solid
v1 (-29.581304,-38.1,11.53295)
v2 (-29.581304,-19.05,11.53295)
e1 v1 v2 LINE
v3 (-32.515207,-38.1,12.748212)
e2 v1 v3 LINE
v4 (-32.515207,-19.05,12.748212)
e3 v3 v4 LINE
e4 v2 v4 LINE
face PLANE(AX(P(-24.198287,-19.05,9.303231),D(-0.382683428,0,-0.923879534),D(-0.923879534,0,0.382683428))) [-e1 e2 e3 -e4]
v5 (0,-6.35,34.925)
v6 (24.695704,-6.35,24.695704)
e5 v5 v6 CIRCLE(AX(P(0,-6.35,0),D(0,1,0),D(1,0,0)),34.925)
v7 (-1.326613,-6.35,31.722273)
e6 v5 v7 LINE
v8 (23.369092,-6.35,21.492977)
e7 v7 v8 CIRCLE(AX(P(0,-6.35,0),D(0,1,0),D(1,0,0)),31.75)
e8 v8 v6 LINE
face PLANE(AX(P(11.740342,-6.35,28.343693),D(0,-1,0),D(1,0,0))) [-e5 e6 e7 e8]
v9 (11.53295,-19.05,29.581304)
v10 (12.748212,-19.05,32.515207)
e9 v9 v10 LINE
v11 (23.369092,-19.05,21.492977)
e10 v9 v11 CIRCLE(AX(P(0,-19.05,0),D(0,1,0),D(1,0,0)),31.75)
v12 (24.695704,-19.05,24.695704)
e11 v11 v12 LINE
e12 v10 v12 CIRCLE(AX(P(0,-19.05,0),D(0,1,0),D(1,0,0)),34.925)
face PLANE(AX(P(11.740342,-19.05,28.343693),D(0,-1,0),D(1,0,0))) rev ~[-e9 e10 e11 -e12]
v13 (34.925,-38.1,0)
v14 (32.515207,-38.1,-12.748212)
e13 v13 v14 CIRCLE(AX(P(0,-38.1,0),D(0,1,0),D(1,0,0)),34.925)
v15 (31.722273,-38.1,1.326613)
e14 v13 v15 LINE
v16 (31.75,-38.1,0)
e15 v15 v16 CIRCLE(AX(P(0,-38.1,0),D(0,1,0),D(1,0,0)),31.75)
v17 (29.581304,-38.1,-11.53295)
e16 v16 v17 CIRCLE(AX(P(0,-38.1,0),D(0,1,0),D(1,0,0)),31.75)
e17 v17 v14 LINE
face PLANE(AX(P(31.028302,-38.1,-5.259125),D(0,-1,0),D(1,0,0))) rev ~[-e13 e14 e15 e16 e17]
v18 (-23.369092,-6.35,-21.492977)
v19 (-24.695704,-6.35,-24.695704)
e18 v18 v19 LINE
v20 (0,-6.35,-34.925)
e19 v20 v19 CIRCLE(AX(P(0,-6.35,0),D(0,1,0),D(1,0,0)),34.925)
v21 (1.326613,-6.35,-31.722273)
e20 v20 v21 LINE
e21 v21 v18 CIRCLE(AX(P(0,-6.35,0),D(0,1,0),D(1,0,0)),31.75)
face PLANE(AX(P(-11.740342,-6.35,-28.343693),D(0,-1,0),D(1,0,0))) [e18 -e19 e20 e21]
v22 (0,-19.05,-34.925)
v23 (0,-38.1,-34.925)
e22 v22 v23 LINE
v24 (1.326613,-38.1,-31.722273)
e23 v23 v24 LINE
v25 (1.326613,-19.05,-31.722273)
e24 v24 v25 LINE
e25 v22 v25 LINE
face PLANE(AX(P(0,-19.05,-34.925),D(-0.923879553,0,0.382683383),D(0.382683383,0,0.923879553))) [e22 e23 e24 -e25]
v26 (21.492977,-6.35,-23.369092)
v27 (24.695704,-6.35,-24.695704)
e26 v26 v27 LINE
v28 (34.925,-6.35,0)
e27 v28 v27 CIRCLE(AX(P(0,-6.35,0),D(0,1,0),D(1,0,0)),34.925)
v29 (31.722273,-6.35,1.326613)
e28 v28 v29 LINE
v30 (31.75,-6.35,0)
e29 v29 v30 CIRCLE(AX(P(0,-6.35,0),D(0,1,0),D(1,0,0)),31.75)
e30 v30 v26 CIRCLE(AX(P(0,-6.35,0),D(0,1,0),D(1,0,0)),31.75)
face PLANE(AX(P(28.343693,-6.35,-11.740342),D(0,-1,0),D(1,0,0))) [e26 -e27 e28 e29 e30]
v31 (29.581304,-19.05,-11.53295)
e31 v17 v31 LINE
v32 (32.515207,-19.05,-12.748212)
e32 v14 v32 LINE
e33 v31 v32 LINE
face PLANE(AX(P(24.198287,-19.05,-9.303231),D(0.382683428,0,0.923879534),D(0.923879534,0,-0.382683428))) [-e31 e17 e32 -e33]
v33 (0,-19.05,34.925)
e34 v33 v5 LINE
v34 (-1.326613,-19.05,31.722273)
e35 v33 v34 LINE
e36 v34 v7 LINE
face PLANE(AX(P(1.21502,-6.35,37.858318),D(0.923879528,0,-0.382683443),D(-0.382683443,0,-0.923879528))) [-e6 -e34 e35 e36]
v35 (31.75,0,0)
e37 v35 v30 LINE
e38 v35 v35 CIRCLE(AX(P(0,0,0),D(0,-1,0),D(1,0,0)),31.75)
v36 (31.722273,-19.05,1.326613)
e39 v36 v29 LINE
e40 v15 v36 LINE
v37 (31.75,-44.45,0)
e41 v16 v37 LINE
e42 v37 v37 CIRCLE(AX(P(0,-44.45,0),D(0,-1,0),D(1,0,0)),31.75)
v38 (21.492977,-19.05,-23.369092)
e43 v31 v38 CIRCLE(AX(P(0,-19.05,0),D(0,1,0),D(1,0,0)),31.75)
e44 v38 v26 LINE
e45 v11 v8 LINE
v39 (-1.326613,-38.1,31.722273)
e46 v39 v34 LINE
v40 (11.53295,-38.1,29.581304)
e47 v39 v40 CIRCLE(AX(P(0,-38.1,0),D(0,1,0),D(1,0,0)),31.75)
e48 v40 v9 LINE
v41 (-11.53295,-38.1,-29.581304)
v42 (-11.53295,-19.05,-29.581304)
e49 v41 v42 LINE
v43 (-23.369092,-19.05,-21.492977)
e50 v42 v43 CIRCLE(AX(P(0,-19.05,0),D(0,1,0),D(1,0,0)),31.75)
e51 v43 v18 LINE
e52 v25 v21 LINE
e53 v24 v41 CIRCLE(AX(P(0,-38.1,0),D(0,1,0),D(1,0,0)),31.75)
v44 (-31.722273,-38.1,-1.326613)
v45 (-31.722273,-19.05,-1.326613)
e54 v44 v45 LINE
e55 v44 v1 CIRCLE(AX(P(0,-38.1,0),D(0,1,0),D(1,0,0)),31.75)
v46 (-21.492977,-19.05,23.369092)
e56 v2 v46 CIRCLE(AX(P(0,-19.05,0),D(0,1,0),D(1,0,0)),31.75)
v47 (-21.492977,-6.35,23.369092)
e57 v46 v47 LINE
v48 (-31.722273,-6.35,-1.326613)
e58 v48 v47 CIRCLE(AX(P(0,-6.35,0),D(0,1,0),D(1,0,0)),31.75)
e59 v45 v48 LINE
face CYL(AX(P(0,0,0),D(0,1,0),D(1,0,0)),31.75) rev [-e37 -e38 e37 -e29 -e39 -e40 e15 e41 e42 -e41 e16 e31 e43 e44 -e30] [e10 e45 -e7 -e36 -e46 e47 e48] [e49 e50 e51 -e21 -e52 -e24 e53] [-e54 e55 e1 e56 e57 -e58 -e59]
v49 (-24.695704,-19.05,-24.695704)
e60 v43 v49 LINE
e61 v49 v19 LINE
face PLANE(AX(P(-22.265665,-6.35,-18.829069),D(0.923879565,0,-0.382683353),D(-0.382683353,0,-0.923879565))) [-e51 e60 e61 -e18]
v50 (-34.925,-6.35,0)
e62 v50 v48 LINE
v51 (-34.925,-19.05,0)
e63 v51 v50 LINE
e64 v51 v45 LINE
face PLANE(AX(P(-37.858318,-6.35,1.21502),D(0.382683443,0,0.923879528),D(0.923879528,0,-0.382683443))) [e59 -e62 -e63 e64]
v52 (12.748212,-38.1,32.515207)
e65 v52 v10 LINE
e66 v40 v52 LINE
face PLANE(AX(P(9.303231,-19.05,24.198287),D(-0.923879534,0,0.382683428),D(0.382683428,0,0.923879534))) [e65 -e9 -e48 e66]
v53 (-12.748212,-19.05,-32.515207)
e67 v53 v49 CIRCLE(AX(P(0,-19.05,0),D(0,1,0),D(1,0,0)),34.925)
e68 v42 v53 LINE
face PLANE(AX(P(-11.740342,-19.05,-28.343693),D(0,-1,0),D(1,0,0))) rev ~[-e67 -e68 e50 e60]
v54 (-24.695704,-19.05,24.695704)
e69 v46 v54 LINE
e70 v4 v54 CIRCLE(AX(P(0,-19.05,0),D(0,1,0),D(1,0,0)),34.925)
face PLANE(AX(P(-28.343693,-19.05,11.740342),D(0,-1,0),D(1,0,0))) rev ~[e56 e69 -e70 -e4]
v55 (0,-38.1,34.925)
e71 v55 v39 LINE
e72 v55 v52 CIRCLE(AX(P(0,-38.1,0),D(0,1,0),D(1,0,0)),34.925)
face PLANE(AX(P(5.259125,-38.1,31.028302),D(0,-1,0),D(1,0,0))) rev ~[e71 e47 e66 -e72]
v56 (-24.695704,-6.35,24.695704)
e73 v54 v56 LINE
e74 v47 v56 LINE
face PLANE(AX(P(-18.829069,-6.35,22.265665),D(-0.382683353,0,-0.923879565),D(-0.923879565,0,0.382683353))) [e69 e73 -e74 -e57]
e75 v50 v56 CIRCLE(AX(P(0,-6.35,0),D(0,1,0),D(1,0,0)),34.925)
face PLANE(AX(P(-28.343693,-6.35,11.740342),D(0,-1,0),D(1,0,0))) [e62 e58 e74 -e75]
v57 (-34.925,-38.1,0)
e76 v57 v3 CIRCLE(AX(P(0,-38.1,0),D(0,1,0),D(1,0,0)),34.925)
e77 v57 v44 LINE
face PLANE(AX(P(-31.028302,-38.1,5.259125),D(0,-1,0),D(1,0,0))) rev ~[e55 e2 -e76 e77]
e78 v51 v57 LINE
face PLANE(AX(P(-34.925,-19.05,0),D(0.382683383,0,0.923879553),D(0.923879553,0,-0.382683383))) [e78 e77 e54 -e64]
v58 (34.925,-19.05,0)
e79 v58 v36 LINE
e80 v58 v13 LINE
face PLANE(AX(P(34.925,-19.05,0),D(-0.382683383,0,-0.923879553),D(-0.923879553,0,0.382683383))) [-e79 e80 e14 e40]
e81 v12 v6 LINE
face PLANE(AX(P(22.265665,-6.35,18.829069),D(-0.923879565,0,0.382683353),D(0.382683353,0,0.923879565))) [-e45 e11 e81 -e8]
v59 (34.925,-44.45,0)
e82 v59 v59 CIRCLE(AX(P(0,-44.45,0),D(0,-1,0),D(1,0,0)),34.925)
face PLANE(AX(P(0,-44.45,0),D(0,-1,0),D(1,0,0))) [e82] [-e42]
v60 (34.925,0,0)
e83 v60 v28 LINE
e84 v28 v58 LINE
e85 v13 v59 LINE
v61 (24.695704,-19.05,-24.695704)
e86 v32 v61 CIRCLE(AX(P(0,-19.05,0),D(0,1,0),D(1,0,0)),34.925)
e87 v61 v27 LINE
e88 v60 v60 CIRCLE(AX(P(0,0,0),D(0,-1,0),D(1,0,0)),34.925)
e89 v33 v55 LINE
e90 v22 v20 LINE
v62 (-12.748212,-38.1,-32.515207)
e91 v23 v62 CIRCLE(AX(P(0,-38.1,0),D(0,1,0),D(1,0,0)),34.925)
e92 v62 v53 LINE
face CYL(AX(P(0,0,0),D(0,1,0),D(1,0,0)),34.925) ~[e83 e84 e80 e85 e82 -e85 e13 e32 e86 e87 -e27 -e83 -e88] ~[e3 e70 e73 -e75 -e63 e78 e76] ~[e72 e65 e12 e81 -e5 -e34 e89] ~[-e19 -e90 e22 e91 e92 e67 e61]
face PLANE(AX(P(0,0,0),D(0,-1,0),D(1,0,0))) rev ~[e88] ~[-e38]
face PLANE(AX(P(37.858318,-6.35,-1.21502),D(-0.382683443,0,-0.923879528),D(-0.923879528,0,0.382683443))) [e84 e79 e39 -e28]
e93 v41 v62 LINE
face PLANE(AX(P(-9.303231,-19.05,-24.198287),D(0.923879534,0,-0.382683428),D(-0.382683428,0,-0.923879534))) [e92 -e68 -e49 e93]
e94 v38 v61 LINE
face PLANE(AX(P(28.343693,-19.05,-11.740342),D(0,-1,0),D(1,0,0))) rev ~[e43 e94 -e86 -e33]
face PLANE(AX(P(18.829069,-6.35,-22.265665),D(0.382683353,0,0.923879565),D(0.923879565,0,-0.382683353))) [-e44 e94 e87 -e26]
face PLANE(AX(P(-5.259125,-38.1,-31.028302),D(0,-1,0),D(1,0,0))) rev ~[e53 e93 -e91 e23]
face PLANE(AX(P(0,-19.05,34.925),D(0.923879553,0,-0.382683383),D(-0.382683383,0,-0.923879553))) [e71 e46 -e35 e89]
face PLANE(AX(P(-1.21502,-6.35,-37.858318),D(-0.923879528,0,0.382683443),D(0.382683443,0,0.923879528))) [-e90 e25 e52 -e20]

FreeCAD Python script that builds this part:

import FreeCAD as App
import Part
import Sketcher

V = App.Vector
Q = App.Units.Quantity

doc = App.newDocument("Part")
body = doc.addObject("PartDesign::Body", "Body")

# Sketch on XZ plane
sketch1 = doc.addObject("Sketcher::SketchObject", "Sketch")
body.addObject(sketch1)
sketch1.AttachmentSupport = (doc.XZ_Plane, [""])
sketch1.MapMode = "FlatFace"
sketch1.addGeometry(Part.Circle(V(0, 0, 0), V(0, 0, 1), 35), False)
sketch1.addGeometry(Part.Circle(V(0, 0, 0), V(0, 0, 1), 32), False)
sketch1.addConstraint(Sketcher.Constraint("Coincident", 0, 3, -1, 1))
sketch1.addConstraint(Sketcher.Constraint("Coincident", 1, 3, -1, 1))
sketch1.addConstraint(Sketcher.Constraint("Diameter", 1, Q("2.5 in")))
sketch1.addConstraint(Sketcher.Constraint("Diameter", 0, Q("2.75 in")))
pad1 = doc.addObject("PartDesign::Pad", "Pad")
body.addObject(pad1)
pad1.Profile = sketch1
pad1.Length = Q("1.75 in")

# Sketch on XZ plane
sketch2 = doc.addObject("Sketcher::SketchObject", "Sketch001")
body.addObject(sketch2)
sketch2.AttachmentSupport = (doc.XZ_Plane, [""])
sketch2.MapMode = "FlatFace"
sketch2.AttachmentOffset = App.Placement(V(0, 0, 0.25 * 25.4), App.Rotation())
sketch2.addGeometry(Part.LineSegment(V(-29, -2, 0), V(-19, 22, 0)), False)
sketch2.addGeometry(Part.LineSegment(V(-19, 22, 0), V(-28, 26, 0)), False)
sketch2.addGeometry(Part.LineSegment(V(-28, 26, 0), V(-38, 1, 0)), False)
sketch2.addGeometry(Part.LineSegment(V(-38, 1, 0), V(-29, -2, 0)), False)
sketch2.addGeometry(Part.LineSegment(V(26, 28, 0), V(1, 38, 0)), False)
sketch2.addGeometry(Part.LineSegment(V(1, 38, 0), V(-2, 29, 0)), False)
sketch2.addGeometry(Part.LineSegment(V(-2, 29, 0), V(22, 19, 0)), False)
sketch2.addGeometry(Part.LineSegment(V(22, 19, 0), V(26, 28, 0)), False)
sketch2.addGeometry(Part.LineSegment(V(29, 2, 0), V(19, -22, 0)), False)
sketch2.addGeometry(Part.LineSegment(V(19, -22, 0), V(28, -26, 0)), False)
sketch2.addGeometry(Part.LineSegment(V(28, -26, 0), V(38, -1, 0)), False)
sketch2.addGeometry(Part.LineSegment(V(38, -1, 0), V(29, 2, 0)), False)
sketch2.addGeometry(Part.LineSegment(V(2, -29, 0), V(-22, -19, 0)), False)
sketch2.addGeometry(Part.LineSegment(V(-22, -19, 0), V(-26, -28, 0)), False)
sketch2.addGeometry(Part.LineSegment(V(-26, -28, 0), V(-1, -38, 0)), False)
sketch2.addGeometry(Part.LineSegment(V(-1, -38, 0), V(2, -29, 0)), False)
sketch2.addConstraint(Sketcher.Constraint("Coincident", 0, 2, 1, 1))
sketch2.addConstraint(Sketcher.Constraint("Coincident", 1, 2, 2, 1))
sketch2.addConstraint(Sketcher.Constraint("Coincident", 2, 2, 3, 1))
sketch2.addConstraint(Sketcher.Constraint("Coincident", 3, 2, 0, 1))
sketch2.addConstraint(Sketcher.Constraint("Coincident", 4, 2, 5, 1))
sketch2.addConstraint(Sketcher.Constraint("Coincident", 5, 2, 6, 1))
sketch2.addConstraint(Sketcher.Constraint("Coincident", 6, 2, 7, 1))
sketch2.addConstraint(Sketcher.Constraint("Coincident", 7, 2, 4, 1))
sketch2.addConstraint(Sketcher.Constraint("Coincident", 8, 2, 9, 1))
sketch2.addConstraint(Sketcher.Constraint("Coincident", 9, 2, 10, 1))
sketch2.addConstraint(Sketcher.Constraint("Coincident", 10, 2, 11, 1))
sketch2.addConstraint(Sketcher.Constraint("Coincident", 11, 2, 8, 1))
sketch2.addConstraint(Sketcher.Constraint("Coincident", 12, 2, 13, 1))
sketch2.addConstraint(Sketcher.Constraint("Coincident", 13, 2, 14, 1))
sketch2.addConstraint(Sketcher.Constraint("Coincident", 14, 2, 15, 1))
sketch2.addConstraint(Sketcher.Constraint("Coincident", 15, 2, 12, 1))
sketch2.addConstraint(Sketcher.Constraint("Symmetric", 0, 2, 8, 2, -1, 1))
sketch2.addConstraint(Sketcher.Constraint("Symmetric", 1, 2, 9, 2, -1, 1))
sketch2.addConstraint(Sketcher.Constraint("Symmetric", 2, 2, 10, 2, -1, 1))
sketch2.addConstraint(Sketcher.Constraint("Symmetric", 3, 2, 11, 2, -1, 1))
sketch2.addConstraint(Sketcher.Constraint("Symmetric", 6, 2, 12, 2, -1, 1))
sketch2.addConstraint(Sketcher.Constraint("Symmetric", 7, 2, 13, 2, -1, 1))
sketch2.addConstraint(Sketcher.Constraint("Symmetric", 4, 2, 14, 2, -1, 1))
sketch2.addConstraint(Sketcher.Constraint("Symmetric", 5, 2, 15, 2, -1, 1))
sketch2.addConstraint(Sketcher.Constraint("Perpendicular", 0, 1))
sketch2.addConstraint(Sketcher.Constraint("Perpendicular", 1, 2))
sketch2.addConstraint(Sketcher.Constraint("Perpendicular", 2, 3))
sketch2.addConstraint(Sketcher.Constraint("Parallel", 3, 4))
sketch2.addConstraint(Sketcher.Constraint("Perpendicular", 4, 5))
sketch2.addConstraint(Sketcher.Constraint("Perpendicular", 5, 6))
sketch2.addConstraint(Sketcher.Constraint("Perpendicular", 6, 7))
sketch2.addConstraint(Sketcher.Constraint("Equal", 2, 4))
sketch2.addConstraint(Sketcher.Constraint("Equal", 3, 5))
sketch2.addConstraint(Sketcher.Constraint("Angle", 0, Q("67.5 deg")))
sketch2.addConstraint(Sketcher.Constraint("Distance", 1, Q("0.375 in")))
sketch2.addConstraint(Sketcher.Constraint("DistanceY", 0, 2, 5, 2, Q("6.7927 mm")))
sketch2.addConstraint(Sketcher.Constraint("DistanceY", 1, 2, 7, 2, Q("1.718298 mm")))
sketch2.addConstraint(Sketcher.Constraint("DistanceX", 7, 2, 9, 2, Q("1.718298 mm")))
sketch2.addConstraint(Sketcher.Constraint("DistanceX", 0, 2, -1, 1, Q("18.829069 mm")))
sketch2.addConstraint(Sketcher.Constraint("DistanceY", -1, 1, 2, 2, Q("1.21502 mm")))
pocket1 = doc.addObject("PartDesign::Pocket", "Pocket")
body.addObject(pocket1)
pocket1.Profile = sketch2
pocket1.Length = Q("0.5 in")
pocket1.Reversed = True

# Sketch on XZ plane
sketch3 = doc.addObject("Sketcher::SketchObject", "Sketch002")
body.addObject(sketch3)
sketch3.AttachmentSupport = (doc.XZ_Plane, [""])
sketch3.MapMode = "FlatFace"
sketch3.AttachmentOffset = App.Placement(V(0, 0, 0.75 * 25.4), App.Rotation())
sketch3.addGeometry(Part.LineSegment(V(0, 34.9, 0), V(-2.4, 29.1, 0)), False)
sketch3.addGeometry(Part.LineSegment(V(-2.4, 29.1, 0), V(9.3, 24.2, 0)), False)
sketch3.addGeometry(Part.LineSegment(V(9.3, 24.2, 0), V(12.9, 33, 0)), False)
sketch3.addGeometry(Part.LineSegment(V(12.9, 33, 0), V(1.2, 37.9, 0)), False)
sketch3.addGeometry(Part.LineSegment(V(1.2, 37.9, 0), V(0, 34.9, 0)), False)
sketch3.addGeometry(Part.LineSegment(V(-34.9, 0, 0), V(-29.1, -2.4, 0)), False)
sketch3.addGeometry(Part.LineSegment(V(-29.1, -2.4, 0), V(-24.2, 9.3, 0)), False)
sketch3.addGeometry(Part.LineSegment(V(-24.2, 9.3, 0), V(-33, 12.9, 0)), False)
sketch3.addGeometry(Part.LineSegment(V(-33, 12.9, 0), V(-37.9, 1.2, 0)), False)
sketch3.addGeometry(Part.LineSegment(V(-37.9, 1.2, 0), V(-34.9, 0, 0)), False)
sketch3.addGeometry(Part.LineSegment(V(0, -34.9, 0), V(2.4, -29.1, 0)), False)
sketch3.addGeometry(Part.LineSegment(V(2.4, -29.1, 0), V(-9.3, -24.2, 0)), False)
sketch3.addGeometry(Part.LineSegment(V(-9.3, -24.2, 0), V(-12.9, -33, 0)), False)
sketch3.addGeometry(Part.LineSegment(V(-12.9, -33, 0), V(-1.2, -37.9, 0)), False)
sketch3.addGeometry(Part.LineSegment(V(-1.2, -37.9, 0), V(0, -34.9, 0)), False)
sketch3.addGeometry(Part.LineSegment(V(34.9, 0, 0), V(29.1, 2.4, 0)), False)
sketch3.addGeometry(Part.LineSegment(V(29.1, 2.4, 0), V(24.2, -9.3, 0)), False)
sketch3.addGeometry(Part.LineSegment(V(24.2, -9.3, 0), V(33, -12.9, 0)), False)
sketch3.addGeometry(Part.LineSegment(V(33, -12.9, 0), V(37.9, -1.2, 0)), False)
sketch3.addGeometry(Part.LineSegment(V(37.9, -1.2, 0), V(34.9, 0, 0)), False)
sketch3.addConstraint(Sketcher.Constraint("Coincident", 0, 2, 1, 1))
sketch3.addConstraint(Sketcher.Constraint("Coincident", 1, 2, 2, 1))
sketch3.addConstraint(Sketcher.Constraint("Coincident", 2, 2, 3, 1))
sketch3.addConstraint(Sketcher.Constraint("Coincident", 3, 2, 4, 1))
sketch3.addConstraint(Sketcher.Constraint("Coincident", 4, 2, 0, 1))
sketch3.addConstraint(Sketcher.Constraint("Coincident", 5, 2, 6, 1))
sketch3.addConstraint(Sketcher.Constraint("Coincident", 6, 2, 7, 1))
sketch3.addConstraint(Sketcher.Constraint("Coincident", 7, 2, 8, 1))
sketch3.addConstraint(Sketcher.Constraint("Coincident", 8, 2, 9, 1))
sketch3.addConstraint(Sketcher.Constraint("Coincident", 9, 2, 5, 1))
sketch3.addConstraint(Sketcher.Constraint("Coincident", 10, 2, 11, 1))
sketch3.addConstraint(Sketcher.Constraint("Coincident", 11, 2, 12, 1))
sketch3.addConstraint(Sketcher.Constraint("Coincident", 12, 2, 13, 1))
sketch3.addConstraint(Sketcher.Constraint("Coincident", 13, 2, 14, 1))
sketch3.addConstraint(Sketcher.Constraint("Coincident", 14, 2, 10, 1))
sketch3.addConstraint(Sketcher.Constraint("Coincident", 15, 2, 16, 1))
sketch3.addConstraint(Sketcher.Constraint("Coincident", 16, 2, 17, 1))
sketch3.addConstraint(Sketcher.Constraint("Coincident", 17, 2, 18, 1))
sketch3.addConstraint(Sketcher.Constraint("Coincident", 18, 2, 19, 1))
sketch3.addConstraint(Sketcher.Constraint("Coincident", 19, 2, 15, 1))
sketch3.addConstraint(Sketcher.Constraint("Symmetric", 0, 2, 10, 2, -1, 1))
sketch3.addConstraint(Sketcher.Constraint("Symmetric", 1, 2, 11, 2, -1, 1))
sketch3.addConstraint(Sketcher.Constraint("Symmetric", 2, 2, 12, 2, -1, 1))
sketch3.addConstraint(Sketcher.Constraint("Symmetric", 3, 2, 13, 2, -1, 1))
sketch3.addConstraint(Sketcher.Constraint("Symmetric", 4, 2, 14, 2, -1, 1))
sketch3.addConstraint(Sketcher.Constraint("Symmetric", 5, 2, 15, 2, -1, 1))
sketch3.addConstraint(Sketcher.Constraint("Symmetric", 6, 2, 16, 2, -1, 1))
sketch3.addConstraint(Sketcher.Constraint("Symmetric", 7, 2, 17, 2, -1, 1))
sketch3.addConstraint(Sketcher.Constraint("Symmetric", 8, 2, 18, 2, -1, 1))
sketch3.addConstraint(Sketcher.Constraint("Symmetric", 9, 2, 19, 2, -1, 1))
sketch3.addConstraint(Sketcher.Constraint("PointOnObject", 4, 2, -2))
sketch3.addConstraint(Sketcher.Constraint("PointOnObject", 9, 2, -1))
sketch3.addConstraint(Sketcher.Constraint("Perpendicular", 0, 1))
sketch3.addConstraint(Sketcher.Constraint("Perpendicular", 1, 2))
sketch3.addConstraint(Sketcher.Constraint("Perpendicular", 2, 3))
sketch3.addConstraint(Sketcher.Constraint("Perpendicular", 3, 4))
sketch3.addConstraint(Sketcher.Constraint("Perpendicular", 4, 5))
sketch3.addConstraint(Sketcher.Constraint("Perpendicular", 5, 6))
sketch3.addConstraint(Sketcher.Constraint("Perpendicular", 6, 7))
sketch3.addConstraint(Sketcher.Constraint("Perpendicular", 7, 8))
sketch3.addConstraint(Sketcher.Constraint("Perpendicular", 8, 9))
sketch3.addConstraint(Sketcher.Constraint("Equal", 0, 5))
sketch3.addConstraint(Sketcher.Constraint("Equal", 3, 6))
sketch3.addConstraint(Sketcher.Constraint("Equal", 2, 7))
sketch3.addConstraint(Sketcher.Constraint("Distance", 1, Q("0.5 in")))
sketch3.addConstraint(Sketcher.Constraint("Angle", 0, Q("-112.499997 deg")))
sketch3.addConstraint(Sketcher.Constraint("Distance", 0, Q("0.25 in")))
sketch3.addConstraint(Sketcher.Constraint("Distance", 2, Q("0.3749999 in")))
sketch3.addConstraint(Sketcher.Constraint("DistanceY", -1, 1, 4, 2, Q("1.375 in")))
sketch3.addConstraint(Sketcher.Constraint("DistanceX", 9, 2, -1, 1, Q("1.375 in")))
pocket2 = doc.addObject("PartDesign::Pocket", "Pocket001")
body.addObject(pocket2)
pocket2.Profile = sketch3
pocket2.Length = Q("0.75 in")
pocket2.Reversed = True

doc.recompute()
